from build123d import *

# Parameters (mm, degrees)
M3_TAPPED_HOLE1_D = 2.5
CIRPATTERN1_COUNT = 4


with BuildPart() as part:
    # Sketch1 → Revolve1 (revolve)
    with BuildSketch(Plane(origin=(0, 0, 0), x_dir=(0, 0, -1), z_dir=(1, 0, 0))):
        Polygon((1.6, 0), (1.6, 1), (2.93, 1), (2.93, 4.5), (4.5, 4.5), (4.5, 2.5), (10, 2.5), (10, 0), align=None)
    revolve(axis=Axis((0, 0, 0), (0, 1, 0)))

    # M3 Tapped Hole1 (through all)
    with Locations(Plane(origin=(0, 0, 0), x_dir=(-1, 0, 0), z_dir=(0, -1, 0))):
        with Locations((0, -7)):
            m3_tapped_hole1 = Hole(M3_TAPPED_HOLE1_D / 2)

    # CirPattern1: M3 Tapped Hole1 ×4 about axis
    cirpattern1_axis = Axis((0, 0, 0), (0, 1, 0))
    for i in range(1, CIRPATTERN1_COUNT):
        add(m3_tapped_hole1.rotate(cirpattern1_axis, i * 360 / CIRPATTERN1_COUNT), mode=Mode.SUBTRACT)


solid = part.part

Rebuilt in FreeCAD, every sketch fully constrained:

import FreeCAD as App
import Part
import Sketcher
from FreeCAD import Vector


def add_polygon(sketch, points):
    """Adds a closed chain of lines whose ends are joined by coincident constraints."""
    first, n = sketch.GeometryCount, len(points)
    for a, b in zip(points, points[1:] + points[:1]):
        sketch.addGeometry(Part.LineSegment(App.Vector(*a, 0), App.Vector(*b, 0)), False)
    for i in range(n):
        sketch.addConstraint(Sketcher.Constraint("Coincident", first + i, 2, first + (i + 1) % n, 1))

doc = App.newDocument("Part")
body = doc.addObject("PartDesign::Body", "Body")

sketch1 = body.newObject("Sketcher::SketchObject", "Sketch")
sketch1.AttachmentSupport = (doc.getObject("YZ_Plane"), [""])
sketch1.MapMode = "FlatFace"
add_polygon(sketch1, [(1, -1.6), (0, -1.6), (0, -10), (2.5, -10), (2.5, -4.5), (4.5, -4.5), (4.5, -2.9), (1, -2.9)])
sketch1.addConstraint(Sketcher.Constraint("Horizontal", 0))
sketch1.addConstraint(Sketcher.Constraint("Vertical", 1))
sketch1.addConstraint(Sketcher.Constraint("Horizontal", 2))
sketch1.addConstraint(Sketcher.Constraint("Vertical", 3))
sketch1.addConstraint(Sketcher.Constraint("Horizontal", 4))
sketch1.addConstraint(Sketcher.Constraint("Vertical", 5))
sketch1.addConstraint(Sketcher.Constraint("Horizontal", 6))
sketch1.addConstraint(Sketcher.Constraint("Vertical", 7))
sketch1.addConstraint(Sketcher.Constraint("PointOnObject", 0, 2, -2))
sketch1.addConstraint(Sketcher.Constraint("DistanceX", 0, 2, 0, 1, 1.0))
sketch1.addConstraint(Sketcher.Constraint("DistanceX", 4, 1, 4, 2, 2.0))
sketch1.addConstraint(Sketcher.Constraint("DistanceX", 2, 1, 2, 2, 2.5))
sketch1.addConstraint(Sketcher.Constraint("DistanceY", 1, 2, 1, 1, 8.4))
sketch1.addConstraint(Sketcher.Constraint("DistanceY", 3, 1, 3, 2, 5.5))
sketch1.addConstraint(Sketcher.Constraint("DistanceY", 1, 2, -1, 1, 10.0))
sketch1.addConstraint(Sketcher.Constraint("DistanceY", 5, 1, 5, 2, 1.57))
revolution = body.newObject("PartDesign::Revolution", "Revolution")
revolution.Profile = sketch1
revolution.ReferenceAxis = (sketch1, ["H_Axis"])
revolution.Angle = 360

sketch2 = body.newObject("Sketcher::SketchObject", "Sketch001")
sketch2.AttachmentSupport = (doc.getObject("XZ_Plane"), [""])
sketch2.MapMode = "FlatFace"
sketch2.addGeometry(Part.Circle(Vector(0, 7, 0), Vector(0, 0, 1), 1.2), False)
sketch2.addConstraint(Sketcher.Constraint("PointOnObject", 0, 3, -2))
sketch2.addConstraint(Sketcher.Constraint("Diameter", 0, 2.5))
sketch2.addConstraint(Sketcher.Constraint("DistanceY", -1, 1, 0, 3, 7.0))
doc.recompute()
hole = body.newObject("PartDesign::Hole", "Hole")
hole.Profile = sketch2
hole.ThreadType = "None"
hole.Diameter = 2.5
hole.DepthType = "ThroughAll"
doc.recompute()

polarpattern = body.newObject("PartDesign::PolarPattern", "PolarPattern")
polarpattern.Originals = [hole]
polarpattern.Axis = (doc.getObject("Y_Axis"), [""])
polarpattern.Angle = 360
polarpattern.Occurrences = 4
body.Tip = polarpattern

doc.recompute()
